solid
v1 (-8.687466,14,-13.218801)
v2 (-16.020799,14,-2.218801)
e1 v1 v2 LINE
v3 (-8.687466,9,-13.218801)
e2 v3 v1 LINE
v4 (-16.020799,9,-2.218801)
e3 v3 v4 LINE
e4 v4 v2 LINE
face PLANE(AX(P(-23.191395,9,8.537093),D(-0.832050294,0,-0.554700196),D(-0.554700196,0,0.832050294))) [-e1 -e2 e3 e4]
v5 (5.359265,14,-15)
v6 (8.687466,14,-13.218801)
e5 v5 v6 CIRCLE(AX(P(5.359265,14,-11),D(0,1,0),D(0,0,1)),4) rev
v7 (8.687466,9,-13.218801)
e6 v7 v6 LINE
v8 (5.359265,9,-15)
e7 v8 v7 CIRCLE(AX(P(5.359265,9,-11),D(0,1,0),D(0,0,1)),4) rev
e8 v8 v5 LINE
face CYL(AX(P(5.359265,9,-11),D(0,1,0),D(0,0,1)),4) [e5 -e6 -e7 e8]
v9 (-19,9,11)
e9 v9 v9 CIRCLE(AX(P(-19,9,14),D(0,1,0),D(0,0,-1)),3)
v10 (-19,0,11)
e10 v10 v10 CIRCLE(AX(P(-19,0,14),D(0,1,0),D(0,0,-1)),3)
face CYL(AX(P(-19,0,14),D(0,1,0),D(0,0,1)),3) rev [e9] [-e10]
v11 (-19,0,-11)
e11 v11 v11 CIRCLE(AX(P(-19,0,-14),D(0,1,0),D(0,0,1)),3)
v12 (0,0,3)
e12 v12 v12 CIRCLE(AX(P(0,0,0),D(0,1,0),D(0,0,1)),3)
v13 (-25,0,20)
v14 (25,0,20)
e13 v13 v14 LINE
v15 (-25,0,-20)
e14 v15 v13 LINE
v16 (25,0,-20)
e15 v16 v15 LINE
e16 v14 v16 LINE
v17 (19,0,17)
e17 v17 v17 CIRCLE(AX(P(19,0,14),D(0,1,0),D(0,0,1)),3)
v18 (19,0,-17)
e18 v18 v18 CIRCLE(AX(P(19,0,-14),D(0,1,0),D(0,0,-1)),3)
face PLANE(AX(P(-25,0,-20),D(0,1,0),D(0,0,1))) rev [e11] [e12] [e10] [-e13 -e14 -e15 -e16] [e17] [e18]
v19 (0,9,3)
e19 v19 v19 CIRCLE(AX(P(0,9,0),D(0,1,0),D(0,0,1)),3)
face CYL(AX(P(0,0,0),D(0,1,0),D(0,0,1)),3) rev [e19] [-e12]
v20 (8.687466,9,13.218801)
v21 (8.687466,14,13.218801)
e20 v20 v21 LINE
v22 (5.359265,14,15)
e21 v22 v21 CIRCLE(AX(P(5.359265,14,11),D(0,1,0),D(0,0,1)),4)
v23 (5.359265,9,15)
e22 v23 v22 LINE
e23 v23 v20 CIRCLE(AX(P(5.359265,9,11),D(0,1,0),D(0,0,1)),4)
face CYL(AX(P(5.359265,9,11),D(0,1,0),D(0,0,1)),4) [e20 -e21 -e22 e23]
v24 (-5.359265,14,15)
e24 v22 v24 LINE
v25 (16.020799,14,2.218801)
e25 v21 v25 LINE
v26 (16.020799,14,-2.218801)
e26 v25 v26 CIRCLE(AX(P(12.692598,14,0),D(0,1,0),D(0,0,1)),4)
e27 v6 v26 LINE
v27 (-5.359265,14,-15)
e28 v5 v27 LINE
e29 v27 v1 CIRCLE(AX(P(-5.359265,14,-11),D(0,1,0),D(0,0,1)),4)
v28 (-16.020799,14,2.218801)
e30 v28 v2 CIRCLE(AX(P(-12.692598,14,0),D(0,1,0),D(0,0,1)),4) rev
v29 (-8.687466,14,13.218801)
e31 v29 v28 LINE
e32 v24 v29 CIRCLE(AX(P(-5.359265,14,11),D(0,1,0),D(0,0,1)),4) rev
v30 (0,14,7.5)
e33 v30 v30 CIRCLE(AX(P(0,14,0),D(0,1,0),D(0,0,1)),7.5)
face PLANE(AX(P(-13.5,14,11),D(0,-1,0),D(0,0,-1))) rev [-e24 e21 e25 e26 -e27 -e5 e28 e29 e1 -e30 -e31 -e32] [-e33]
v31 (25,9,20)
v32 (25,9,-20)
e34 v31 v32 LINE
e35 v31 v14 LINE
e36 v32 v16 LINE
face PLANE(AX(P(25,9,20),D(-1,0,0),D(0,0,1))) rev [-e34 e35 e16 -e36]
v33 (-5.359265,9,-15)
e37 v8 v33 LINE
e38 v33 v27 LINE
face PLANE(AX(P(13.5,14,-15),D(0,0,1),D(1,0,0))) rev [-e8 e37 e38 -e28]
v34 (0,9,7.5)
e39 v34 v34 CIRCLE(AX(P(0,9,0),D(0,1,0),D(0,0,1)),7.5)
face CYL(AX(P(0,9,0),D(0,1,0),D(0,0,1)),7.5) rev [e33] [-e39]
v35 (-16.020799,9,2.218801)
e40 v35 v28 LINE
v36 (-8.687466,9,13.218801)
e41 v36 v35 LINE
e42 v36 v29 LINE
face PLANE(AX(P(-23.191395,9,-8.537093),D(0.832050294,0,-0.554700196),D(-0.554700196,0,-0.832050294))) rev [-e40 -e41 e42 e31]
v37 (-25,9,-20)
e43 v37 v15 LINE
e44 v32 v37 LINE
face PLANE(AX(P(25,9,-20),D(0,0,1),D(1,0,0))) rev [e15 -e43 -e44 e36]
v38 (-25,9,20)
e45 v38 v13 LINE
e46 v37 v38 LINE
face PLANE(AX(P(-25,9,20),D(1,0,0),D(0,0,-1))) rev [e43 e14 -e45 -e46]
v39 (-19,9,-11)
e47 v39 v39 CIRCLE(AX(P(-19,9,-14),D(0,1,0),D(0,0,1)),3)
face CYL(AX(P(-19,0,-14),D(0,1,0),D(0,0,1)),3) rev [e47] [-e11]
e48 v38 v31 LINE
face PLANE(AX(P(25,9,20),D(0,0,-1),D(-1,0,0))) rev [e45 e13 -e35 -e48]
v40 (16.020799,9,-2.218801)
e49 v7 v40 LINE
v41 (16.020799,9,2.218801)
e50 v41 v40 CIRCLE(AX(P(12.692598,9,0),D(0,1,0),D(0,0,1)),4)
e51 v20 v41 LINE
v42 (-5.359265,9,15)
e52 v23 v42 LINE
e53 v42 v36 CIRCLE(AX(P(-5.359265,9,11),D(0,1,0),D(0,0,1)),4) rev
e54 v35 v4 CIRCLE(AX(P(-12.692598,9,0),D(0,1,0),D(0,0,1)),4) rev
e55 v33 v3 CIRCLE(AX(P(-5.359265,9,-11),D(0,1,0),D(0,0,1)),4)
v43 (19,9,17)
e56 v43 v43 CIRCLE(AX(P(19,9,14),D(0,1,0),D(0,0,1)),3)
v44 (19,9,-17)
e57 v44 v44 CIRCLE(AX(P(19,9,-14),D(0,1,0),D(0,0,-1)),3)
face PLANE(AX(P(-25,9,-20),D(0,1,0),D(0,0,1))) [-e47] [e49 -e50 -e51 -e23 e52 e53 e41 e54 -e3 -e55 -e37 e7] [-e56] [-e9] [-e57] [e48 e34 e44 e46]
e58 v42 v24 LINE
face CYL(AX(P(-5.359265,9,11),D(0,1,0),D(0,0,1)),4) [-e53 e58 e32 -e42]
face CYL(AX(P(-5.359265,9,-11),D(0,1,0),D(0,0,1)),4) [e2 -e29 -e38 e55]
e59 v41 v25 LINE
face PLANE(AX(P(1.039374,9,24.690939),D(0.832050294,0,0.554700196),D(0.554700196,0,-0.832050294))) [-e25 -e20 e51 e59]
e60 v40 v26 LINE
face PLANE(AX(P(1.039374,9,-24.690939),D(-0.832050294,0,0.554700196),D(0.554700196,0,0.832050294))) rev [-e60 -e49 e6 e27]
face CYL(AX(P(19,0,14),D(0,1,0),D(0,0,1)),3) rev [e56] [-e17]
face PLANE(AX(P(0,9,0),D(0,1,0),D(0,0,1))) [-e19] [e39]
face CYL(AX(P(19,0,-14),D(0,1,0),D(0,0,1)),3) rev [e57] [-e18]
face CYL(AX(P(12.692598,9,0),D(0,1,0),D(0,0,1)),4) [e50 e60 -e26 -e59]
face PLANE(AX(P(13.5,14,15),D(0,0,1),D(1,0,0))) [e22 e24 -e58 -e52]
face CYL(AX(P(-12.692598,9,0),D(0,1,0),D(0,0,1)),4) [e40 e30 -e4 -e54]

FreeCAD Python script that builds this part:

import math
import FreeCAD as App
import Part
import Sketcher
from FreeCAD import Vector
Q = App.Units.Quantity

doc = App.newDocument("Part")
body = doc.addObject("PartDesign::Body", "Body")

sketch1 = body.newObject("Sketcher::SketchObject", "Sketch")
sketch1.AttachmentSupport = (doc.getObject("XZ_Plane"), [""])
sketch1.MapMode = "FlatFace"
sketch1.addGeometry(Part.LineSegment(Vector(-25, -20, 0), Vector(-25, 20, 0)), False)
sketch1.addGeometry(Part.LineSegment(Vector(-25, 20, 0), Vector(25, 20, 0)), False)
sketch1.addGeometry(Part.LineSegment(Vector(25, 20, 0), Vector(25, -20, 0)), False)
sketch1.addGeometry(Part.LineSegment(Vector(25, -20, 0), Vector(-25, -20, 0)), False)
sketch1.addConstraint(Sketcher.Constraint("Coincident", 0, 2, 1, 1))
sketch1.addConstraint(Sketcher.Constraint("Coincident", 1, 2, 2, 1))
sketch1.addConstraint(Sketcher.Constraint("Coincident", 2, 2, 3, 1))
sketch1.addConstraint(Sketcher.Constraint("Coincident", 3, 2, 0, 1))
sketch1.addConstraint(Sketcher.Constraint("Vertical", 0))
sketch1.addConstraint(Sketcher.Constraint("Horizontal", 1))
sketch1.addConstraint(Sketcher.Constraint("Vertical", 2))
sketch1.addConstraint(Sketcher.Constraint("Horizontal", 3))
sketch1.addConstraint(Sketcher.Constraint("Symmetric", 0, 2, 2, 2, -1, 1))
sketch1.addConstraint(Sketcher.Constraint("DistanceX", 1, 1, 1, 2, Q("50 mm")))
sketch1.addConstraint(Sketcher.Constraint("DistanceY", 0, 1, 0, 2, Q("40 mm")))
pad1 = body.newObject("PartDesign::Pad", "Pad")
pad1.Profile = sketch1
pad1.Length = 9
pad1.Reversed = True

sketch2 = body.newObject("Sketcher::SketchObject", "Sketch001")
sketch2.AttachmentSupport = (doc.getObject("XZ_Plane"), [""])
sketch2.MapMode = "FlatFace"
sketch2.AttachmentOffset = App.Placement(Vector(0, 0, -9), App.Rotation())
sketch2.addGeometry(Part.LineSegment(Vector(-13.5, 15, 0), Vector(13.5, 15, 0)), False)
sketch2.addGeometry(Part.ArcOfCircle(Part.Circle(Vector(13.5, 11, 0), Vector(0, 0, 1), 4), math.radians(0), math.radians(90)), False)
sketch2.addGeometry(Part.LineSegment(Vector(17.5, 11, 0), Vector(17.5, -11, 0)), False)
sketch2.addGeometry(Part.ArcOfCircle(Part.Circle(Vector(13.5, -11, 0), Vector(0, 0, 1), 4), math.radians(-90), math.radians(0)), False)
sketch2.addGeometry(Part.LineSegment(Vector(13.5, -15, 0), Vector(-13.5, -15, 0)), False)
sketch2.addGeometry(Part.ArcOfCircle(Part.Circle(Vector(-13.5, -11, 0), Vector(0, 0, 1), 4), math.radians(180), math.radians(270)), False)
sketch2.addGeometry(Part.LineSegment(Vector(-17.5, -11, 0), Vector(-17.5, 11, 0)), False)
sketch2.addGeometry(Part.ArcOfCircle(Part.Circle(Vector(-13.5, 11, 0), Vector(0, 0, 1), 4), math.radians(90), math.radians(180)), False)
sketch2.addConstraint(Sketcher.Constraint("Tangent", 0, 2, 1, 2))
sketch2.addConstraint(Sketcher.Constraint("Tangent", 1, 1, 2, 1))
sketch2.addConstraint(Sketcher.Constraint("Tangent", 2, 2, 3, 2))
sketch2.addConstraint(Sketcher.Constraint("Tangent", 3, 1, 4, 1))
sketch2.addConstraint(Sketcher.Constraint("Tangent", 4, 2, 5, 2))
sketch2.addConstraint(Sketcher.Constraint("Tangent", 5, 1, 6, 1))
sketch2.addConstraint(Sketcher.Constraint("Tangent", 6, 2, 7, 2))
sketch2.addConstraint(Sketcher.Constraint("Tangent", 7, 1, 0, 1))
sketch2.addConstraint(Sketcher.Constraint("Horizontal", 0))
sketch2.addConstraint(Sketcher.Constraint("Vertical", 2))
sketch2.addConstraint(Sketcher.Constraint("Horizontal", 4))
sketch2.addConstraint(Sketcher.Constraint("Vertical", 6))
sketch2.addConstraint(Sketcher.Constraint("Equal", 1, 3))
sketch2.addConstraint(Sketcher.Constraint("Equal", 3, 5))
sketch2.addConstraint(Sketcher.Constraint("Equal", 5, 7))
sketch2.addConstraint(Sketcher.Constraint("Symmetric", 1, 3, 5, 3, -1, 1))
sketch2.addConstraint(Sketcher.Constraint("Radius", 1, Q("4 mm")))
sketch2.addConstraint(Sketcher.Constraint("DistanceX", 0, 1, 0, 2, Q("27 mm")))
sketch2.addConstraint(Sketcher.Constraint("DistanceY", 2, 2, 2, 1, Q("22 mm")))
pad2 = body.newObject("PartDesign::Pad", "Pad001")
pad2.Profile = sketch2
pad2.Length = 5
pad2.Reversed = True

sketch3 = body.newObject("Sketcher::SketchObject", "Sketch002")
sketch3.AttachmentSupport = (doc.getObject("XZ_Plane"), [""])
sketch3.MapMode = "FlatFace"
sketch3.AttachmentOffset = App.Placement(Vector(0, 0, -14), App.Rotation())
sketch3.addGeometry(Part.Circle(Vector(0, 0, 0), Vector(0, 0, 1), 7.5), False)
sketch3.addConstraint(Sketcher.Constraint("Coincident", 0, 3, -1, 1))
sketch3.addConstraint(Sketcher.Constraint("Diameter", 0, Q("15 mm")))
pocket1 = body.newObject("PartDesign::Pocket", "Pocket")
pocket1.Profile = sketch3
pocket1.Length = 5
pocket1.Reversed = True

sketch4 = body.newObject("Sketcher::SketchObject", "Sketch003")
sketch4.AttachmentSupport = (doc.getObject("XZ_Plane"), [""])
sketch4.MapMode = "FlatFace"
sketch4.AttachmentOffset = App.Placement(Vector(0, 0, -9), App.Rotation())
sketch4.addGeometry(Part.Circle(Vector(0, 0, 0), Vector(0, 0, 1), 3), False)
sketch4.addConstraint(Sketcher.Constraint("Coincident", 0, 3, -1, 1))
sketch4.addConstraint(Sketcher.Constraint("Diameter", 0, Q("6 mm")))
pocket2 = body.newObject("PartDesign::Pocket", "Pocket001")
pocket2.Profile = sketch4
pocket2.Type = "ThroughAll"
pocket2.Reversed = True

sketch5 = body.newObject("Sketcher::SketchObject", "Sketch004")
sketch5.AttachmentSupport = (doc.getObject("XZ_Plane"), [""])
sketch5.MapMode = "FlatFace"
sketch5.AttachmentOffset = App.Placement(Vector(0, 0, -9), App.Rotation())
sketch5.addGeometry(Part.ArcOfCircle(Part.Circle(Vector(-5.359265, -11, 0), Vector(0, 0, 1), 4), math.radians(-146.309932), math.radians(-90)), False)
sketch5.addGeometry(Part.LineSegment(Vector(-5.359265, -15, 0), Vector(-13.5, -15, 0)), False)
sketch5.addGeometry(Part.ArcOfCircle(Part.Circle(Vector(-13.5, -11, 0), Vector(0, 0, 1), 4), math.radians(180), math.radians(270)), False)
sketch5.addGeometry(Part.LineSegment(Vector(-17.5, -11, 0), Vector(-17.5, 11, 0)), False)
sketch5.addGeometry(Part.ArcOfCircle(Part.Circle(Vector(-13.5, 11, 0), Vector(0, 0, 1), 4), math.radians(90), math.radians(180)), False)
sketch5.addGeometry(Part.LineSegment(Vector(-13.5, 15, 0), Vector(-5.359265, 15, 0)), False)
sketch5.addGeometry(Part.ArcOfCircle(Part.Circle(Vector(-5.359265, 11, 0), Vector(0, 0, 1), 4), math.radians(90), math.radians(146.309932)), False)
sketch5.addGeometry(Part.LineSegment(Vector(-8.687466, 13.218801, 0), Vector(-16.020799, 2.218801, 0)), False)
sketch5.addGeometry(Part.ArcOfCircle(Part.Circle(Vector(-12.692598, 0, 0), Vector(0, 0, 1), 4), math.radians(146.309933), math.radians(213.690067)), False)
sketch5.addGeometry(Part.LineSegment(Vector(-16.020799, -2.218801, 0), Vector(-8.687466, -13.218801, 0)), False)
sketch5.addGeometry(Part.ArcOfCircle(Part.Circle(Vector(5.359265, -11, 0), Vector(0, 0, 1), 4), math.radians(-90), math.radians(-33.690068)), False)
sketch5.addGeometry(Part.LineSegment(Vector(8.687466, -13.218801, 0), Vector(16.020799, -2.218801, 0)), False)
sketch5.addGeometry(Part.ArcOfCircle(Part.Circle(Vector(12.692598, 0, 0), Vector(0, 0, 1), 4), math.radians(-33.690067), math.radians(33.690067)), False)
sketch5.addGeometry(Part.LineSegment(Vector(16.020799, 2.218801, 0), Vector(8.687466, 13.218801, 0)), False)
sketch5.addGeometry(Part.ArcOfCircle(Part.Circle(Vector(5.359265, 11, 0), Vector(0, 0, 1), 4), math.radians(33.690068), math.radians(90)), False)
sketch5.addGeometry(Part.LineSegment(Vector(5.359265, 15, 0), Vector(13.5, 15, 0)), False)
sketch5.addGeometry(Part.ArcOfCircle(Part.Circle(Vector(13.5, 11, 0), Vector(0, 0, 1), 4), math.radians(0), math.radians(90)), False)
sketch5.addGeometry(Part.LineSegment(Vector(17.5, 11, 0), Vector(17.5, -11, 0)), False)
sketch5.addGeometry(Part.ArcOfCircle(Part.Circle(Vector(13.5, -11, 0), Vector(0, 0, 1), 4), math.radians(-90), math.radians(0)), False)
sketch5.addGeometry(Part.LineSegment(Vector(13.5, -15, 0), Vector(5.359265, -15, 0)), False)
sketch5.addConstraint(Sketcher.Constraint("Tangent", 0, 2, 1, 1))
sketch5.addConstraint(Sketcher.Constraint("Tangent", 1, 2, 2, 2))
sketch5.addConstraint(Sketcher.Constraint("Tangent", 2, 1, 3, 1))
sketch5.addConstraint(Sketcher.Constraint("Tangent", 3, 2, 4, 2))
sketch5.addConstraint(Sketcher.Constraint("Tangent", 4, 1, 5, 1))
sketch5.addConstraint(Sketcher.Constraint("Tangent", 5, 2, 6, 1))
sketch5.addConstraint(Sketcher.Constraint("Tangent", 6, 2, 7, 1))
sketch5.addConstraint(Sketcher.Constraint("Tangent", 7, 2, 8, 1))
sketch5.addConstraint(Sketcher.Constraint("Tangent", 8, 2, 9, 1))
sketch5.addConstraint(Sketcher.Constraint("Tangent", 9, 2, 0, 1))
sketch5.addConstraint(Sketcher.Constraint("Tangent", 10, 2, 11, 1))
sketch5.addConstraint(Sketcher.Constraint("Tangent", 11, 2, 12, 1))
sketch5.addConstraint(Sketcher.Constraint("Tangent", 12, 2, 13, 1))
sketch5.addConstraint(Sketcher.Constraint("Tangent", 13, 2, 14, 1))
sketch5.addConstraint(Sketcher.Constraint("Tangent", 14, 2, 15, 1))
sketch5.addConstraint(Sketcher.Constraint("Tangent", 15, 2, 16, 2))
sketch5.addConstraint(Sketcher.Constraint("Tangent", 16, 1, 17, 1))
sketch5.addConstraint(Sketcher.Constraint("Tangent", 17, 2, 18, 2))
sketch5.addConstraint(Sketcher.Constraint("Tangent", 18, 1, 19, 1))
sketch5.addConstraint(Sketcher.Constraint("Tangent", 19, 2, 10, 1))
sketch5.addConstraint(Sketcher.Constraint("Horizontal", 1))
sketch5.addConstraint(Sketcher.Constraint("Vertical", 3))
sketch5.addConstraint(Sketcher.Constraint("Horizontal", 5))
sketch5.addConstraint(Sketcher.Constraint("Horizontal", 15))
sketch5.addConstraint(Sketcher.Constraint("Vertical", 17))
sketch5.addConstraint(Sketcher.Constraint("Horizontal", 19))
sketch5.addConstraint(Sketcher.Constraint("Equal", 0, 2))
sketch5.addConstraint(Sketcher.Constraint("Equal", 2, 4))
sketch5.addConstraint(Sketcher.Constraint("Equal", 4, 6))
sketch5.addConstraint(Sketcher.Constraint("Equal", 6, 8))
sketch5.addConstraint(Sketcher.Constraint("Equal", 8, 10))
sketch5.addConstraint(Sketcher.Constraint("Equal", 10, 12))
sketch5.addConstraint(Sketcher.Constraint("Equal", 12, 14))
sketch5.addConstraint(Sketcher.Constraint("Equal", 14, 16))
sketch5.addConstraint(Sketcher.Constraint("Equal", 16, 18))
sketch5.addConstraint(Sketcher.Constraint("Symmetric", 6, 3, 10, 3, -1, 1))
sketch5.addConstraint(Sketcher.Constraint("Symmetric", 8, 3, 12, 3, -1, 1))
sketch5.addConstraint(Sketcher.Constraint("Symmetric", 0, 3, 14, 3, -1, 1))
sketch5.addConstraint(Sketcher.Constraint("Symmetric", 0, 3, 10, 3, -2))
sketch5.addConstraint(Sketcher.Constraint("PointOnObject", 8, 3, -1))
sketch5.addConstraint(Sketcher.Constraint("Equal", 5, 15))
sketch5.addConstraint(Sketcher.Constraint("Radius", 0, Q("4 mm")))
sketch5.addConstraint(Sketcher.Constraint("DistanceY", 3, 1, 3, 2, Q("22 mm")))
sketch5.addConstraint(Sketcher.Constraint("DistanceX", 4, 3, 16, 3, Q("27 mm")))
sketch5.addConstraint(Sketcher.Constraint("DistanceX", 8, 3, -1, 1, Q("12.692598 mm")))
sketch5.addConstraint(Sketcher.Constraint("DistanceY", -1, 1, 6, 2, Q("13.218801 mm")))
pocket3 = body.newObject("PartDesign::Pocket", "Pocket002")
pocket3.Profile = sketch5
pocket3.Length = 5

sketch6 = body.newObject("Sketcher::SketchObject", "Sketch005")
sketch6.AttachmentSupport = (doc.getObject("XZ_Plane"), [""])
sketch6.MapMode = "FlatFace"
sketch6.AttachmentOffset = App.Placement(Vector(0, 0, -9), App.Rotation())
sketch6.addGeometry(Part.Circle(Vector(-19, -14, 0), Vector(0, 0, 1), 3), False)
sketch6.addGeometry(Part.Circle(Vector(-19, 14, 0), Vector(0, 0, 1), 3), False)
sketch6.addGeometry(Part.Circle(Vector(19, 14, 0), Vector(0, 0, 1), 3), False)
sketch6.addGeometry(Part.Circle(Vector(19, -14, 0), Vector(0, 0, 1), 3), False)
sketch6.addConstraint(Sketcher.Constraint("Equal", 0, 1))
sketch6.addConstraint(Sketcher.Constraint("Equal", 1, 2))
sketch6.addConstraint(Sketcher.Constraint("Equal", 2, 3))
sketch6.addConstraint(Sketcher.Constraint("Symmetric", 0, 3, 2, 3, -1, 1))
sketch6.addConstraint(Sketcher.Constraint("Symmetric", 1, 3, 3, 3, -1, 1))
sketch6.addConstraint(Sketcher.Constraint("Symmetric", 1, 3, 2, 3, -2))
sketch6.addConstraint(Sketcher.Constraint("Diameter", 0, Q("6 mm")))
sketch6.addConstraint(Sketcher.Constraint("DistanceX", 0, 3, -1, 1, Q("19 mm")))
sketch6.addConstraint(Sketcher.Constraint("DistanceY", 0, 3, -1, 1, Q("14 mm")))
pocket4 = body.newObject("PartDesign::Pocket", "Pocket003")
pocket4.Profile = sketch6
pocket4.Type = "ThroughAll"
pocket4.Reversed = True

doc.recompute()
